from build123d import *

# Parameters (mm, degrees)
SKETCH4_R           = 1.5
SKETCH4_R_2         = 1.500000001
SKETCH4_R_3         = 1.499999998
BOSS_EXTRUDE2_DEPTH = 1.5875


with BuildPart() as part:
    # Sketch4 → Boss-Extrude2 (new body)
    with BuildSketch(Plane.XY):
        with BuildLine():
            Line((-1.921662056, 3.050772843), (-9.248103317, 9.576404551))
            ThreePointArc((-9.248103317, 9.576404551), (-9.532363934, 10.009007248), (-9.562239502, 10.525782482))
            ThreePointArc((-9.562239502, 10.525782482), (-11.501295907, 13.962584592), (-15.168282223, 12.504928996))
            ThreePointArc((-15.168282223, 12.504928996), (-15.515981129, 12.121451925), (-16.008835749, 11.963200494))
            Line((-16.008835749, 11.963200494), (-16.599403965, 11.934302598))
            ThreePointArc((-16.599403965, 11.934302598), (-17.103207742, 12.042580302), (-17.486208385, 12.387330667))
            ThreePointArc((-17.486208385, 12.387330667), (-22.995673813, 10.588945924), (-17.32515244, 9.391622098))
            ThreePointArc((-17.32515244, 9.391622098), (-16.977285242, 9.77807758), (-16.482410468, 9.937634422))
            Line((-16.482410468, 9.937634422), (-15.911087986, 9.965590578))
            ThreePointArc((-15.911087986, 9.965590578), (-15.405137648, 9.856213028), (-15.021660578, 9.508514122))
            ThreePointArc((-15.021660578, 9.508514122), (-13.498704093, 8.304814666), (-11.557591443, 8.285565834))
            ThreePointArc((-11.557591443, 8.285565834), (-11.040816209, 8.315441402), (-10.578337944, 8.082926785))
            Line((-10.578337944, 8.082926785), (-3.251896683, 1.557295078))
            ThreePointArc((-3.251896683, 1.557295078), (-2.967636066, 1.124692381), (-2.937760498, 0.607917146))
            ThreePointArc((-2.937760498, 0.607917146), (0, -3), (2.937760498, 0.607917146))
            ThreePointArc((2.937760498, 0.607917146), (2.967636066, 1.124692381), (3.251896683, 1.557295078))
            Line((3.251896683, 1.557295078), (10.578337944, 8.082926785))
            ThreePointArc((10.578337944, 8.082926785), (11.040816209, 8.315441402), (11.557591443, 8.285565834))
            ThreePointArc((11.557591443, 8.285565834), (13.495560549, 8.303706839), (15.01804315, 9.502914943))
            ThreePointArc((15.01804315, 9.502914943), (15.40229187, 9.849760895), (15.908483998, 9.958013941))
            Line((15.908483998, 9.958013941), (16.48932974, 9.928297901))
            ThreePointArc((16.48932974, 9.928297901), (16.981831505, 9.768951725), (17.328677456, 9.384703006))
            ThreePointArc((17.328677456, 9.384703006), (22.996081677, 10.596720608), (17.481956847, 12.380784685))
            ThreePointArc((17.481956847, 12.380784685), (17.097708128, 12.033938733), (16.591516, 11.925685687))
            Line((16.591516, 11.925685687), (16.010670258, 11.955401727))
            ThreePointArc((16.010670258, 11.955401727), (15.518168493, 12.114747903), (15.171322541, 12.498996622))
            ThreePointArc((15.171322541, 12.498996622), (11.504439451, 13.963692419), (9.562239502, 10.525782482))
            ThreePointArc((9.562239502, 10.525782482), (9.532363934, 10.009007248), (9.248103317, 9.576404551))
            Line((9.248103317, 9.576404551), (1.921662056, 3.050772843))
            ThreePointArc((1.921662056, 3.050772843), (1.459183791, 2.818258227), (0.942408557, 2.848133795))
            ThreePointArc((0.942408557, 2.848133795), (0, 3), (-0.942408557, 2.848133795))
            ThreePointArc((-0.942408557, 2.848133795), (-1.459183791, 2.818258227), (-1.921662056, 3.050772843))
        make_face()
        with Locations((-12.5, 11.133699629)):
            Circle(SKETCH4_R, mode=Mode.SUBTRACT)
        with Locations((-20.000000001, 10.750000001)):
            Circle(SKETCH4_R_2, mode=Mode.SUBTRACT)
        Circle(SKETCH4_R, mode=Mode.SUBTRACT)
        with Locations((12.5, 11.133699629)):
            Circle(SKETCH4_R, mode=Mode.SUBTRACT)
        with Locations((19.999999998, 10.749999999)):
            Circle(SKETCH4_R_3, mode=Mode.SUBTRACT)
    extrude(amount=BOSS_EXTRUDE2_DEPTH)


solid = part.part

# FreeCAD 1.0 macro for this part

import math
import FreeCAD as App
import Part
import Sketcher

doc = App.newDocument("Part")
body = doc.addObject("PartDesign::Body", "Body")

sketch1 = doc.addObject("Sketcher::SketchObject", "Sketch")
body.addObject(sketch1)
sketch1.AttachmentSupport = (doc.XY_Plane, [""])
sketch1.MapMode = "FlatFace"
sketch1.addGeometry(Part.LineSegment(App.Vector(-1.921662, 3.050773, 0), App.Vector(-9.248103, 9.576405, 0)), False)
sketch1.addGeometry(Part.ArcOfCircle(Part.Circle(App.Vector(-8.582986, 10.323143, 0), App.Vector(0, 0, 1), 1), math.radians(168.308674), math.radians(228.308674)), False)
sketch1.addGeometry(Part.ArcOfCircle(Part.Circle(App.Vector(-12.5, 11.1337, 0), App.Vector(0, 0, 1), 3), math.radians(-11.691326), math.radians(152.801383)), False)
sketch1.addGeometry(Part.ArcOfCircle(Part.Circle(App.Vector(-16.05771, 12.962005, 0), App.Vector(0, 0, 1), 1), math.radians(-87.198617), math.radians(-27.198617)), False)
sketch1.addGeometry(Part.LineSegment(App.Vector(-16.008836, 11.9632, 0), App.Vector(-16.599404, 11.934303, 0)), False)
sketch1.addGeometry(Part.ArcOfCircle(Part.Circle(App.Vector(-16.648278, 12.933108, 0), App.Vector(0, 0, 1), 1), math.radians(-146.92223), math.radians(-87.198617)), False)
sketch1.addGeometry(Part.ArcOfCircle(Part.Circle(App.Vector(-20, 10.75, 0), App.Vector(0, 0, 1), 3), math.radians(33.07777), math.radians(333.077002)), False)
sketch1.addGeometry(Part.ArcOfCircle(Part.Circle(App.Vector(-16.433537, 8.938829, 0), App.Vector(0, 0, 1), 1), math.radians(92.801383), math.radians(153.077002)), False)
sketch1.addGeometry(Part.LineSegment(App.Vector(-16.48241, 9.937634, 0), App.Vector(-15.911088, 9.965591, 0)), False)
sketch1.addGeometry(Part.ArcOfCircle(Part.Circle(App.Vector(-15.862214, 8.966786, 0), App.Vector(0, 0, 1), 1), math.radians(32.801383), math.radians(92.801383)), False)
sketch1.addGeometry(Part.ArcOfCircle(Part.Circle(App.Vector(-12.5, 11.1337, 0), App.Vector(0, 0, 1), 3), math.radians(-147.198617), math.radians(-71.691326)), False)
sketch1.addGeometry(Part.ArcOfCircle(Part.Circle(App.Vector(-11.243455, 7.336188, 0), App.Vector(0, 0, 1), 1), math.radians(48.308674), math.radians(108.308674)), False)
sketch1.addGeometry(Part.LineSegment(App.Vector(-10.578338, 8.082927, 0), App.Vector(-3.251897, 1.557295, 0)), False)
sketch1.addGeometry(Part.ArcOfCircle(Part.Circle(App.Vector(-3.917014, 0.810556, 0), App.Vector(0, 0, 1), 1), math.radians(-11.691326), math.radians(48.308674)), False)
sketch1.addGeometry(Part.ArcOfCircle(Part.Circle(App.Vector(0, 0, 0), App.Vector(0, 0, 1), 3), math.radians(168.308674), math.radians(371.691326)), False)
sketch1.addGeometry(Part.ArcOfCircle(Part.Circle(App.Vector(3.917014, 0.810556, 0), App.Vector(0, 0, 1), 1), math.radians(131.691326), math.radians(191.691326)), False)
sketch1.addGeometry(Part.LineSegment(App.Vector(3.251897, 1.557295, 0), App.Vector(10.578338, 8.082927, 0)), False)
sketch1.addGeometry(Part.ArcOfCircle(Part.Circle(App.Vector(11.243455, 7.336188, 0), App.Vector(0, 0, 1), 1), math.radians(71.691326), math.radians(131.691326)), False)
sketch1.addGeometry(Part.ArcOfCircle(Part.Circle(App.Vector(12.5, 11.1337, 0), App.Vector(0, 0, 1), 3), math.radians(-108.308674), math.radians(-32.928696)), False)
sketch1.addGeometry(Part.ArcOfCircle(Part.Circle(App.Vector(15.857391, 8.95932, 0), App.Vector(0, 0, 1), 1), math.radians(87.071304), math.radians(147.071304)), False)
sketch1.addGeometry(Part.LineSegment(App.Vector(15.908484, 9.958014, 0), App.Vector(16.48933, 9.928298, 0)), False)
sketch1.addGeometry(Part.ArcOfCircle(Part.Circle(App.Vector(16.438237, 8.929604, 0), App.Vector(0, 0, 1), 1), math.radians(27.071304), math.radians(87.071304)), False)
sketch1.addGeometry(Part.ArcOfCircle(Part.Circle(App.Vector(20, 10.75, 0), App.Vector(0, 0, 1), 3), math.radians(-152.928696), math.radians(147.071304)), False)
sketch1.addGeometry(Part.ArcOfCircle(Part.Circle(App.Vector(16.642609, 12.92438, 0), App.Vector(0, 0, 1), 1), math.radians(-92.928696), math.radians(-32.928696)), False)
sketch1.addGeometry(Part.LineSegment(App.Vector(16.591516, 11.925686, 0), App.Vector(16.01067, 11.955402, 0)), False)
sketch1.addGeometry(Part.ArcOfCircle(Part.Circle(App.Vector(16.061763, 12.954096, 0), App.Vector(0, 0, 1), 1), math.radians(-152.928696), math.radians(-92.928696)), False)
sketch1.addGeometry(Part.ArcOfCircle(Part.Circle(App.Vector(12.5, 11.1337, 0), App.Vector(0, 0, 1), 3), math.radians(27.071304), math.radians(191.691326)), False)
sketch1.addGeometry(Part.ArcOfCircle(Part.Circle(App.Vector(8.582986, 10.323143, 0), App.Vector(0, 0, 1), 1), math.radians(-48.308674), math.radians(11.691326)), False)
sketch1.addGeometry(Part.LineSegment(App.Vector(9.248103, 9.576405, 0), App.Vector(1.921662, 3.050773, 0)), False)
sketch1.addGeometry(Part.ArcOfCircle(Part.Circle(App.Vector(1.256545, 3.797512, 0), App.Vector(0, 0, 1), 1), math.radians(-108.308674), math.radians(-48.308674)), False)
sketch1.addGeometry(Part.ArcOfCircle(Part.Circle(App.Vector(0, 0, 0), App.Vector(0, 0, 1), 3), math.radians(71.691326), math.radians(108.308674)), False)
sketch1.addGeometry(Part.ArcOfCircle(Part.Circle(App.Vector(-1.256545, 3.797512, 0), App.Vector(0, 0, 1), 1), math.radians(-131.691326), math.radians(-71.691326)), False)
sketch1.addGeometry(Part.Circle(App.Vector(0, 0, 0), App.Vector(0, 0, 1), 1.5), False)
sketch1.addGeometry(Part.Circle(App.Vector(-20, 10.75, 0), App.Vector(0, 0, 1), 1.5), False)
sketch1.addGeometry(Part.Circle(App.Vector(-12.5, 11.1337, 0), App.Vector(0, 0, 1), 1.5), False)
sketch1.addGeometry(Part.Circle(App.Vector(20, 10.75, 0), App.Vector(0, 0, 1), 1.5), False)
sketch1.addGeometry(Part.Circle(App.Vector(12.5, 11.1337, 0), App.Vector(0, 0, 1), 1.5), False)
sketch1.addConstraint(Sketcher.Constraint("Tangent", 0, 2, 1, 2))
sketch1.addConstraint(Sketcher.Constraint("Tangent", 1, 1, 2, 1))
sketch1.addConstraint(Sketcher.Constraint("Tangent", 2, 2, 3, 2))
sketch1.addConstraint(Sketcher.Constraint("Tangent", 3, 1, 4, 1))
sketch1.addConstraint(Sketcher.Constraint("Tangent", 4, 2, 5, 2))
sketch1.addConstraint(Sketcher.Constraint("Tangent", 5, 1, 6, 1))
sketch1.addConstraint(Sketcher.Constraint("Tangent", 6, 2, 7, 2))
sketch1.addConstraint(Sketcher.Constraint("Tangent", 7, 1, 8, 1))
sketch1.addConstraint(Sketcher.Constraint("Tangent", 8, 2, 9, 2))
sketch1.addConstraint(Sketcher.Constraint("Tangent", 9, 1, 10, 1))
sketch1.addConstraint(Sketcher.Constraint("Tangent", 10, 2, 11, 2))
sketch1.addConstraint(Sketcher.Constraint("Tangent", 11, 1, 12, 1))
sketch1.addConstraint(Sketcher.Constraint("Tangent", 12, 2, 13, 2))
sketch1.addConstraint(Sketcher.Constraint("Tangent", 13, 1, 14, 1))
sketch1.addConstraint(Sketcher.Constraint("Tangent", 14, 2, 15, 2))
sketch1.addConstraint(Sketcher.Constraint("Tangent", 15, 1, 16, 1))
sketch1.addConstraint(Sketcher.Constraint("Tangent", 16, 2, 17, 2))
sketch1.addConstraint(Sketcher.Constraint("Tangent", 17, 1, 18, 1))
sketch1.addConstraint(Sketcher.Constraint("Tangent", 18, 2, 19, 2))
sketch1.addConstraint(Sketcher.Constraint("Tangent", 19, 1, 20, 1))
sketch1.addConstraint(Sketcher.Constraint("Tangent", 20, 2, 21, 2))
sketch1.addConstraint(Sketcher.Constraint("Tangent", 21, 1, 22, 1))
sketch1.addConstraint(Sketcher.Constraint("Tangent", 22, 2, 23, 2))
sketch1.addConstraint(Sketcher.Constraint("Tangent", 23, 1, 24, 1))
sketch1.addConstraint(Sketcher.Constraint("Tangent", 24, 2, 25, 2))
sketch1.addConstraint(Sketcher.Constraint("Tangent", 25, 1, 26, 1))
sketch1.addConstraint(Sketcher.Constraint("Tangent", 26, 2, 27, 2))
sketch1.addConstraint(Sketcher.Constraint("Tangent", 27, 1, 28, 1))
sketch1.addConstraint(Sketcher.Constraint("Tangent", 28, 2, 29, 2))
sketch1.addConstraint(Sketcher.Constraint("Tangent", 29, 1, 30, 1))
sketch1.addConstraint(Sketcher.Constraint("Tangent", 30, 2, 31, 2))
sketch1.addConstraint(Sketcher.Constraint("Tangent", 31, 1, 0, 1))
sketch1.addConstraint(Sketcher.Constraint("Coincident", 14, 3, -1, 1))
sketch1.addConstraint(Sketcher.Constraint("Coincident", 30, 3, -1, 1))
sketch1.addConstraint(Sketcher.Constraint("Coincident", 32, 3, -1, 1))
sketch1.addConstraint(Sketcher.Constraint("Coincident", 10, 3, 2, 3))
sketch1.addConstraint(Sketcher.Constraint("Coincident", 26, 3, 18, 3))
sketch1.addConstraint(Sketcher.Constraint("Coincident", 33, 3, 6, 3))
sketch1.addConstraint(Sketcher.Constraint("Coincident", 34, 3, 2, 3))
sketch1.addConstraint(Sketcher.Constraint("Coincident", 35, 3, 22, 3))
sketch1.addConstraint(Sketcher.Constraint("Coincident", 36, 3, 18, 3))
sketch1.addConstraint(Sketcher.Constraint("Equal", 1, 3))
sketch1.addConstraint(Sketcher.Constraint("Equal", 3, 5))
sketch1.addConstraint(Sketcher.Constraint("Equal", 2, 6))
sketch1.addConstraint(Sketcher.Constraint("Equal", 5, 7))
sketch1.addConstraint(Sketcher.Constraint("Equal", 7, 9))
sketch1.addConstraint(Sketcher.Constraint("Equal", 6, 10))
sketch1.addConstraint(Sketcher.Constraint("Equal", 9, 11))
sketch1.addConstraint(Sketcher.Constraint("Equal", 11, 13))
sketch1.addConstraint(Sketcher.Constraint("Equal", 10, 14))
sketch1.addConstraint(Sketcher.Constraint("Equal", 13, 15))
sketch1.addConstraint(Sketcher.Constraint("Equal", 15, 17))
sketch1.addConstraint(Sketcher.Constraint("Equal", 14, 18))
sketch1.addConstraint(Sketcher.Constraint("Equal", 17, 19))
sketch1.addConstraint(Sketcher.Constraint("Equal", 19, 21))
sketch1.addConstraint(Sketcher.Constraint("Equal", 18, 22))
sketch1.addConstraint(Sketcher.Constraint("Equal", 21, 23))
sketch1.addConstraint(Sketcher.Constraint("Equal", 23, 25))
sketch1.addConstraint(Sketcher.Constraint("Equal", 22, 26))
sketch1.addConstraint(Sketcher.Constraint("Equal", 25, 27))
sketch1.addConstraint(Sketcher.Constraint("Equal", 27, 29))
sketch1.addConstraint(Sketcher.Constraint("Equal", 26, 30))
sketch1.addConstraint(Sketcher.Constraint("Equal", 29, 31))
sketch1.addConstraint(Sketcher.Constraint("Equal", 32, 33))
sketch1.addConstraint(Sketcher.Constraint("Equal", 33, 34))
sketch1.addConstraint(Sketcher.Constraint("Equal", 34, 35))
sketch1.addConstraint(Sketcher.Constraint("Equal", 35, 36))
sketch1.addConstraint(Sketcher.Constraint("Symmetric", 11, 3, 17, 3, -2))
sketch1.addConstraint(Sketcher.Constraint("Symmetric", 6, 3, 22, 3, -2))
sketch1.addConstraint(Sketcher.Constraint("Symmetric", 1, 3, 27, 3, -2))
sketch1.addConstraint(Sketcher.Constraint("Parallel", 4, 8))
sketch1.addConstraint(Sketcher.Constraint("Parallel", 0, 12))
sketch1.addConstraint(Sketcher.Constraint("Parallel", 20, 24))
sketch1.addConstraint(Sketcher.Constraint("Parallel", 16, 28))
sketch1.addConstraint(Sketcher.Constraint("Horizontal", 13, 3, 15, 3))
sketch1.addConstraint(Sketcher.Constraint("Equal", 0, 12))
sketch1.addConstraint(Sketcher.Constraint("Equal", 20, 24))
sketch1.addConstraint(Sketcher.Constraint("Diameter", 32, 3.0))
sketch1.addConstraint(Sketcher.Constraint("Radius", 1, 1.0))
sketch1.addConstraint(Sketcher.Constraint("Radius", 2, 3.0))
sketch1.addConstraint(Sketcher.Constraint("DistanceX", 6, 3, -1, 1, 20.0))
sketch1.addConstraint(Sketcher.Constraint("DistanceX", 2, 3, -1, 1, 12.5))
sketch1.addConstraint(Sketcher.Constraint("DistanceY", -1, 1, 6, 3, 10.75))
sketch1.addConstraint(Sketcher.Constraint("DistanceY", -1, 1, 2, 3, 11.1337))
sketch1.addConstraint(Sketcher.Constraint("DistanceY", -1, 1, 3, 1, 11.9632))
sketch1.addConstraint(Sketcher.Constraint("DistanceY", -1, 1, 24, 2, 11.955402))
sketch1.addConstraint(Sketcher.Constraint("Distance", 0, 9.811249))
sketch1.addConstraint(Sketcher.Constraint("DistanceX", 3, 3, -1, 1, 16.05771))
sketch1.addConstraint(Sketcher.Constraint("DistanceY", -1, 1, 7, 3, 8.938829))
sketch1.addConstraint(Sketcher.Constraint("DistanceX", -1, 1, 19, 3, 15.857391))
sketch1.addConstraint(Sketcher.Constraint("DistanceY", -1, 1, 29, 3, 3.797512))
pad1 = doc.addObject("PartDesign::Pad", "Pad")
body.addObject(pad1)
pad1.Profile = sketch1
pad1.Length = 1.5875

doc.recompute()
